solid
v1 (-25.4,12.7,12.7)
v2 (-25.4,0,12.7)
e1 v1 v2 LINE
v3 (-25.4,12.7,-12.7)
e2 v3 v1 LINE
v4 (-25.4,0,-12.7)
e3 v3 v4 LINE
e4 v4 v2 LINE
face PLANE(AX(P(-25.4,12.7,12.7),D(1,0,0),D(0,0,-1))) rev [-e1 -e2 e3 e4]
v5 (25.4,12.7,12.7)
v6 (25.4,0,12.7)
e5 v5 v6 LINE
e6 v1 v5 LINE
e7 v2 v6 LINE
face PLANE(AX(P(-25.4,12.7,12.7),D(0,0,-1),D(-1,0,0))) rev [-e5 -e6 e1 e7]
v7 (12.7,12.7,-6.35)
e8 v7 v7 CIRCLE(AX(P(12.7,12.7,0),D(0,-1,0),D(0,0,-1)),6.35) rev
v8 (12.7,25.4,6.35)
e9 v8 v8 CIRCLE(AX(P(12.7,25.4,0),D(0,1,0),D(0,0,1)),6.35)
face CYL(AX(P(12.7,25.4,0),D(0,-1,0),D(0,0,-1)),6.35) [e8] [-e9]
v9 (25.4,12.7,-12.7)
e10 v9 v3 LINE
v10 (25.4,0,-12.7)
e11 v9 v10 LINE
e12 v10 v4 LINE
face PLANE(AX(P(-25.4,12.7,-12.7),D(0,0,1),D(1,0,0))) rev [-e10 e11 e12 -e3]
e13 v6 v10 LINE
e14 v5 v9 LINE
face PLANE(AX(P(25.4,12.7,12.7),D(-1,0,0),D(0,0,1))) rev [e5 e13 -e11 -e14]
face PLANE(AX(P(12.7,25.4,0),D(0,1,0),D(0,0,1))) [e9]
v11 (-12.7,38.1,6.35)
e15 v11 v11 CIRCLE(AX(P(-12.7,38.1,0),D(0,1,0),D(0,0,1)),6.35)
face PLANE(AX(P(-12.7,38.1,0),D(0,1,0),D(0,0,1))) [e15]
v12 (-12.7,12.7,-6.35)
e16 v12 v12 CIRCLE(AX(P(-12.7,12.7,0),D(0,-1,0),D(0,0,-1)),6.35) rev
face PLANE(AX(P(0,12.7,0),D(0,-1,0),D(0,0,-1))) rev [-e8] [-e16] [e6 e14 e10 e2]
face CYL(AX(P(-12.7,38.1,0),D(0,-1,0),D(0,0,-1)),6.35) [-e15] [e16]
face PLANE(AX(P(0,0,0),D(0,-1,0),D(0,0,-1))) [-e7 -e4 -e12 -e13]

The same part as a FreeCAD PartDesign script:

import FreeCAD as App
import Part
import Sketcher
Q = App.Units.Quantity


def add_polygon(sketch, points):
    """Adds a closed chain of lines whose ends are joined by coincident constraints."""
    first, n = sketch.GeometryCount, len(points)
    for a, b in zip(points, points[1:] + points[:1]):
        sketch.addGeometry(Part.LineSegment(App.Vector(*a, 0), App.Vector(*b, 0)), False)
    for i in range(n):
        sketch.addConstraint(Sketcher.Constraint("Coincident", first + i, 2, first + (i + 1) % n, 1))

doc = App.newDocument("Part")
params = doc.addObject("Spreadsheet::Sheet", "Params")
for row, (alias, value) in enumerate([
    ("sketch1_width", "2 in"),
    ("sketch1_height", "1 in"),
    ("pad1_length", "0.5 in"),
    ("sketch2_diameter", "0.5 in"),
    ("pad2_length", "1 in"),
    ("sketch3_diameter", "0.5 in"),
    ("pad3_length", "0.5 in"),
], start=1):
    params.set(f"A{row}", alias)
    params.set(f"B{row}", "=" + value)
    params.setAlias(f"B{row}", alias)

body = doc.addObject("PartDesign::Body", "Body")

sketch1 = body.newObject("Sketcher::SketchObject", "Sketch")
sketch1.AttachmentSupport = (doc.getObject("XZ_Plane"), [""])
sketch1.MapMode = "FlatFace"
add_polygon(sketch1, [(-25, -13), (-25, 13), (25, 13), (25, -13)])
sketch1.addConstraint([
    Sketcher.Constraint("Vertical", 0),
    Sketcher.Constraint("Horizontal", 1),
    Sketcher.Constraint("Vertical", 2),
    Sketcher.Constraint("Horizontal", 3),
    Sketcher.Constraint("Symmetric", 0, 2, 2, 2, -1, 1),
    Sketcher.Constraint("DistanceX", 1, 1, 1, 2, Q("2 in")),
    Sketcher.Constraint("DistanceY", 0, 1, 0, 2, Q("1 in")),
])
sketch1.setExpression("Constraints[9]", "Params.sketch1_width")
sketch1.setExpression("Constraints[10]", "Params.sketch1_height")
pad1 = body.newObject("PartDesign::Pad", "Pad")
pad1.Profile = sketch1
pad1.setExpression("Length", "Params.pad1_length")
pad1.Reversed = True

sketch2 = body.newObject("Sketcher::SketchObject", "Sketch001")
sketch2.AttachmentSupport = (doc.getObject("XZ_Plane"), [""])
sketch2.MapMode = "FlatFace"
sketch2.AttachmentOffset = App.Placement(App.Vector(0, 0, -0.5 * 25.4), App.Rotation())
sketch2.addGeometry(Part.Circle(App.Vector(-13, 0, 0), App.Vector(0, 0, 1), 6), False)
sketch2.addConstraint([
    Sketcher.Constraint("PointOnObject", 0, 3, -1),
    Sketcher.Constraint("Diameter", 0, Q("0.5 in")),
    Sketcher.Constraint("DistanceX", 0, 3, -1, 1, Q("0.5 in")),
])
sketch2.setExpression("Constraints[1]", "Params.sketch2_diameter")
pad2 = body.newObject("PartDesign::Pad", "Pad001")
pad2.Profile = sketch2
pad2.setExpression("Length", "Params.pad2_length")
pad2.Reversed = True

sketch3 = body.newObject("Sketcher::SketchObject", "Sketch002")
sketch3.AttachmentSupport = (doc.getObject("XZ_Plane"), [""])
sketch3.MapMode = "FlatFace"
sketch3.AttachmentOffset = App.Placement(App.Vector(0, 0, -0.5 * 25.4), App.Rotation())
sketch3.addGeometry(Part.Circle(App.Vector(13, 0, 0), App.Vector(0, 0, 1), 6), False)
sketch3.addConstraint([
    Sketcher.Constraint("PointOnObject", 0, 3, -1),
    Sketcher.Constraint("Diameter", 0, Q("0.5 in")),
    Sketcher.Constraint("DistanceX", -1, 1, 0, 3, Q("0.5 in")),
])
sketch3.setExpression("Constraints[1]", "Params.sketch3_diameter")
pad3 = body.newObject("PartDesign::Pad", "Pad002")
pad3.Profile = sketch3
pad3.setExpression("Length", "Params.pad3_length")
pad3.Reversed = True

doc.recompute()
